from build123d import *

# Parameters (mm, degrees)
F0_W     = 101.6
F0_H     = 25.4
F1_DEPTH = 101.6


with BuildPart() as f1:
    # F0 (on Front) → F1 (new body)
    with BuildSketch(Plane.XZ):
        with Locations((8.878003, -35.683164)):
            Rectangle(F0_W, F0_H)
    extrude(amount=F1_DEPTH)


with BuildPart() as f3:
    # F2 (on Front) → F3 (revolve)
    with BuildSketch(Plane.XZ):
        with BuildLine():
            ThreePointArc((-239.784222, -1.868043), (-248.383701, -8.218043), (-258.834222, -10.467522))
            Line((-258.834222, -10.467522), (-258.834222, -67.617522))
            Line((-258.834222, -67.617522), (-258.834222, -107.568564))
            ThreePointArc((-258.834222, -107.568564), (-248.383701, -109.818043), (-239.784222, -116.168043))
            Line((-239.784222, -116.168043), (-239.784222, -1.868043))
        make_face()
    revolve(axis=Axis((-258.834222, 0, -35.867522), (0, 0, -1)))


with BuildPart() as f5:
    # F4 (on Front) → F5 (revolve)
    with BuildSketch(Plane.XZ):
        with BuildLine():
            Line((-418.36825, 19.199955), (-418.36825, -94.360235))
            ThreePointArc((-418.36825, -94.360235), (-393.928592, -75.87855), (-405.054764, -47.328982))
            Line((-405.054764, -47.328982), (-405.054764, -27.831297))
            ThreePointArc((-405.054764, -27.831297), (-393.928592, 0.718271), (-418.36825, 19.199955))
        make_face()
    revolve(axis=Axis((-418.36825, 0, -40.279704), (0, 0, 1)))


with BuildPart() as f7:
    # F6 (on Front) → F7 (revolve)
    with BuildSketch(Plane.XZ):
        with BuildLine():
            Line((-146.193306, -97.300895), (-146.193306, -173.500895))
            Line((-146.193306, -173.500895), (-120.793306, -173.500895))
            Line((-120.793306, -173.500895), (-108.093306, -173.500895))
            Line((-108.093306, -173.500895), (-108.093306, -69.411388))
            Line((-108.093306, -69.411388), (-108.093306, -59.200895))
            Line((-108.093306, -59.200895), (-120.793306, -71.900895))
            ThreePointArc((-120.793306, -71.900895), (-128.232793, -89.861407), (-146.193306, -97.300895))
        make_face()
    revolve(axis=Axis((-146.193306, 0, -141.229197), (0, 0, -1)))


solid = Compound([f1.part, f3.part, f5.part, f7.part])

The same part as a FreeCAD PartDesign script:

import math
import FreeCAD as App
import Part
import Sketcher
Q = App.Units.Quantity

doc = App.newDocument("Part")
body = doc.addObject("PartDesign::Body", "Body")

# Sketch on XZ plane
sketch1 = body.newObject("Sketcher::SketchObject", "Sketch")
sketch1.AttachmentSupport = (doc.getObject("XZ_Plane"), [""])
sketch1.MapMode = "FlatFace"
sketch1.addGeometry(Part.LineSegment(App.Vector(-42, -23, 0), App.Vector(-42, -48, 0)), False)
sketch1.addGeometry(Part.LineSegment(App.Vector(-42, -48, 0), App.Vector(60, -48, 0)), False)
sketch1.addGeometry(Part.LineSegment(App.Vector(60, -48, 0), App.Vector(60, -23, 0)), False)
sketch1.addGeometry(Part.LineSegment(App.Vector(60, -23, 0), App.Vector(-42, -23, 0)), False)
sketch1.addConstraint(Sketcher.Constraint("Coincident", 0, 2, 1, 1))
sketch1.addConstraint(Sketcher.Constraint("Coincident", 1, 2, 2, 1))
sketch1.addConstraint(Sketcher.Constraint("Coincident", 2, 2, 3, 1))
sketch1.addConstraint(Sketcher.Constraint("Coincident", 3, 2, 0, 1))
sketch1.addConstraint(Sketcher.Constraint("Vertical", 0))
sketch1.addConstraint(Sketcher.Constraint("Horizontal", 1))
sketch1.addConstraint(Sketcher.Constraint("Vertical", 2))
sketch1.addConstraint(Sketcher.Constraint("Horizontal", 3))
sketch1.addConstraint(Sketcher.Constraint("DistanceX", 1, 1, 1, 2, Q("4 in")))
sketch1.addConstraint(Sketcher.Constraint("DistanceY", 0, 2, 0, 1, Q("1 in")))
sketch1.addConstraint(Sketcher.Constraint("DistanceX", 0, 2, -1, 1, Q("41.921997 mm")))
sketch1.addConstraint(Sketcher.Constraint("DistanceY", 0, 2, -1, 1, Q("48.383164 mm")))
pad1 = body.newObject("PartDesign::Pad", "Pad")
pad1.Profile = sketch1
pad1.Length = Q("4 in")
body2 = doc.addObject("PartDesign::Body", "Body001")

# Sketch on XZ plane
sketch2 = body2.newObject("Sketcher::SketchObject", "Sketch001")
sketch2.AttachmentSupport = (doc.getObject("XZ_Plane001"), [""])
sketch2.MapMode = "FlatFace"
sketch2.addGeometry(Part.ArcOfCircle(Part.Circle(App.Vector(-259, 15, 0), App.Vector(0, 0, 1), 25), math.radians(-90), math.radians(-41)), False)
sketch2.addGeometry(Part.LineSegment(App.Vector(-259, -10, 0), App.Vector(-259, -108, 0)), False)
sketch2.addGeometry(Part.ArcOfCircle(Part.Circle(App.Vector(-259, -133, 0), App.Vector(0, 0, 1), 25), math.radians(41), math.radians(90)), False)
sketch2.addGeometry(Part.LineSegment(App.Vector(-240, -116, 0), App.Vector(-240, -2, 0)), False)
sketch2.addGeometry(Part.LineSegment(App.Vector(-259, 15, 0), App.Vector(-259, -133, 0)), True)  # axis
sketch2.addConstraint(Sketcher.Constraint("Coincident", 0, 1, 1, 1))
sketch2.addConstraint(Sketcher.Constraint("Coincident", 1, 2, 2, 2))
sketch2.addConstraint(Sketcher.Constraint("Coincident", 2, 1, 3, 1))
sketch2.addConstraint(Sketcher.Constraint("Coincident", 3, 2, 0, 2))
sketch2.addConstraint(Sketcher.Constraint("Vertical", 1))
sketch2.addConstraint(Sketcher.Constraint("Vertical", 3))
sketch2.addConstraint(Sketcher.Constraint("Vertical", 4))
sketch2.addConstraint(Sketcher.Constraint("Coincident", 4, 1, 0, 3))
sketch2.addConstraint(Sketcher.Constraint("Coincident", 4, 2, 2, 3))
sketch2.addConstraint(Sketcher.Constraint("Equal", 0, 2))
sketch2.addConstraint(Sketcher.Constraint("Vertical", 2, 3, 0, 1))
sketch2.addConstraint(Sketcher.Constraint("Radius", 0, Q("0.9999999 in")))
sketch2.addConstraint(Sketcher.Constraint("DistanceY", 3, 1, 3, 2, Q("4.5 in")))
sketch2.addConstraint(Sketcher.Constraint("DistanceX", 1, 2, 2, 1, Q("0.75 in")))
sketch2.addConstraint(Sketcher.Constraint("DistanceX", 0, 3, -1, 1, Q("258.834221 mm")))
sketch2.addConstraint(Sketcher.Constraint("DistanceY", 0, 1, -1, 1, Q("10.467522 mm")))
revolution = body2.newObject("PartDesign::Revolution", "Revolution")
revolution.Profile = sketch2
revolution.ReferenceAxis = (sketch2, ["Axis0"])
revolution.Angle = 360
body3 = doc.addObject("PartDesign::Body", "Body002")

# Sketch on XZ plane
sketch3 = body3.newObject("Sketcher::SketchObject", "Sketch002")
sketch3.AttachmentSupport = (doc.getObject("XZ_Plane002"), [""])
sketch3.MapMode = "FlatFace"
sketch3.addGeometry(Part.LineSegment(App.Vector(-418, 19, 0), App.Vector(-418, -94, 0)), False)
sketch3.addGeometry(Part.ArcOfCircle(Part.Circle(App.Vector(-418, -69, 0), App.Vector(0, 0, 1), 25), math.radians(-90), math.radians(58)), False)
sketch3.addGeometry(Part.LineSegment(App.Vector(-405, -47, 0), App.Vector(-405, -28, 0)), False)
sketch3.addGeometry(Part.ArcOfCircle(Part.Circle(App.Vector(-418, -6, 0), App.Vector(0, 0, 1), 25), math.radians(-58), math.radians(90)), False)
sketch3.addGeometry(Part.LineSegment(App.Vector(-418, -94, 0), App.Vector(-418, 19, 0)), True)  # axis
sketch3.addConstraint(Sketcher.Constraint("Coincident", 0, 2, 1, 1))
sketch3.addConstraint(Sketcher.Constraint("Coincident", 1, 2, 2, 1))
sketch3.addConstraint(Sketcher.Constraint("Coincident", 2, 2, 3, 1))
sketch3.addConstraint(Sketcher.Constraint("Coincident", 3, 2, 0, 1))
sketch3.addConstraint(Sketcher.Constraint("Vertical", 0))
sketch3.addConstraint(Sketcher.Constraint("Vertical", 2))
sketch3.addConstraint(Sketcher.Constraint("Vertical", 4))
sketch3.addConstraint(Sketcher.Constraint("Coincident", 4, 1, 0, 2))
sketch3.addConstraint(Sketcher.Constraint("Equal", 1, 3))
sketch3.addConstraint(Sketcher.Constraint("Vertical", 1, 3, 3, 3))
sketch3.addConstraint(Sketcher.Constraint("Vertical", 3, 3, 0, 2))
sketch3.addConstraint(Sketcher.Constraint("Equal", 0, 4))
sketch3.addConstraint(Sketcher.Constraint("Radius", 1, Q("1 in")))
sketch3.addConstraint(Sketcher.Constraint("DistanceY", 0, 2, 0, 1, Q("113.56019 mm")))
sketch3.addConstraint(Sketcher.Constraint("DistanceY", 2, 1, 2, 2, Q("19.497685 mm")))
sketch3.addConstraint(Sketcher.Constraint("DistanceX", 1, 3, -1, 1, Q("418.368251 mm")))
sketch3.addConstraint(Sketcher.Constraint("DistanceY", 1, 2, -1, 1, Q("47.328982 mm")))
revolution2 = body3.newObject("PartDesign::Revolution", "Revolution001")
revolution2.Profile = sketch3
revolution2.ReferenceAxis = (sketch3, ["Axis0"])
revolution2.Angle = 360
body4 = doc.addObject("PartDesign::Body", "Body003")

# Sketch on XZ plane
sketch4 = body4.newObject("Sketcher::SketchObject", "Sketch003")
sketch4.AttachmentSupport = (doc.getObject("XZ_Plane003"), [""])
sketch4.MapMode = "FlatFace"
sketch4.addGeometry(Part.LineSegment(App.Vector(-146, -97, 0), App.Vector(-146, -174, 0)), False)
sketch4.addGeometry(Part.LineSegment(App.Vector(-146, -174, 0), App.Vector(-108, -174, 0)), False)
sketch4.addGeometry(Part.LineSegment(App.Vector(-108, -174, 0), App.Vector(-108, -59, 0)), False)
sketch4.addGeometry(Part.LineSegment(App.Vector(-108, -59, 0), App.Vector(-121, -72, 0)), False)
sketch4.addGeometry(Part.ArcOfCircle(Part.Circle(App.Vector(-146, -72, 0), App.Vector(0, 0, 1), 25), math.radians(-90), math.radians(0)), False)
sketch4.addGeometry(Part.LineSegment(App.Vector(-146, -59, 0), App.Vector(-146, -174, 0)), True)  # axis
sketch4.addConstraint(Sketcher.Constraint("Coincident", 0, 2, 1, 1))
sketch4.addConstraint(Sketcher.Constraint("Coincident", 1, 2, 2, 1))
sketch4.addConstraint(Sketcher.Constraint("Coincident", 2, 2, 3, 1))
sketch4.addConstraint(Sketcher.Constraint("Coincident", 3, 2, 4, 2))
sketch4.addConstraint(Sketcher.Constraint("Coincident", 4, 1, 0, 1))
sketch4.addConstraint(Sketcher.Constraint("Vertical", 0))
sketch4.addConstraint(Sketcher.Constraint("Horizontal", 1))
sketch4.addConstraint(Sketcher.Constraint("Vertical", 2))
sketch4.addConstraint(Sketcher.Constraint("Vertical", 5))
sketch4.addConstraint(Sketcher.Constraint("Coincident", 5, 2, 0, 2))
sketch4.addConstraint(Sketcher.Constraint("Horizontal", 4, 3, 3, 2))
sketch4.addConstraint(Sketcher.Constraint("Horizontal", 2, 2, 5, 1))
sketch4.addConstraint(Sketcher.Constraint("Vertical", 4, 3, 0, 2))
sketch4.addConstraint(Sketcher.Constraint("Radius", 4, Q("1 in")))
sketch4.addConstraint(Sketcher.Constraint("DistanceY", 0, 2, 0, 1, Q("3 in")))
sketch4.addConstraint(Sketcher.Constraint("DistanceX", 1, 1, 1, 2, Q("1.5 in")))
sketch4.addConstraint(Sketcher.Constraint("DistanceY", 2, 1, 2, 2, Q("4.5 in")))
sketch4.addConstraint(Sketcher.Constraint("DistanceX", 4, 3, -1, 1, Q("146.193305 mm")))
sketch4.addConstraint(Sketcher.Constraint("DistanceY", 4, 3, -1, 1, Q("71.900896 mm")))
revolution3 = body4.newObject("PartDesign::Revolution", "Revolution002")
revolution3.Profile = sketch4
revolution3.ReferenceAxis = (sketch4, ["Axis0"])
revolution3.Angle = 360

doc.recompute()
